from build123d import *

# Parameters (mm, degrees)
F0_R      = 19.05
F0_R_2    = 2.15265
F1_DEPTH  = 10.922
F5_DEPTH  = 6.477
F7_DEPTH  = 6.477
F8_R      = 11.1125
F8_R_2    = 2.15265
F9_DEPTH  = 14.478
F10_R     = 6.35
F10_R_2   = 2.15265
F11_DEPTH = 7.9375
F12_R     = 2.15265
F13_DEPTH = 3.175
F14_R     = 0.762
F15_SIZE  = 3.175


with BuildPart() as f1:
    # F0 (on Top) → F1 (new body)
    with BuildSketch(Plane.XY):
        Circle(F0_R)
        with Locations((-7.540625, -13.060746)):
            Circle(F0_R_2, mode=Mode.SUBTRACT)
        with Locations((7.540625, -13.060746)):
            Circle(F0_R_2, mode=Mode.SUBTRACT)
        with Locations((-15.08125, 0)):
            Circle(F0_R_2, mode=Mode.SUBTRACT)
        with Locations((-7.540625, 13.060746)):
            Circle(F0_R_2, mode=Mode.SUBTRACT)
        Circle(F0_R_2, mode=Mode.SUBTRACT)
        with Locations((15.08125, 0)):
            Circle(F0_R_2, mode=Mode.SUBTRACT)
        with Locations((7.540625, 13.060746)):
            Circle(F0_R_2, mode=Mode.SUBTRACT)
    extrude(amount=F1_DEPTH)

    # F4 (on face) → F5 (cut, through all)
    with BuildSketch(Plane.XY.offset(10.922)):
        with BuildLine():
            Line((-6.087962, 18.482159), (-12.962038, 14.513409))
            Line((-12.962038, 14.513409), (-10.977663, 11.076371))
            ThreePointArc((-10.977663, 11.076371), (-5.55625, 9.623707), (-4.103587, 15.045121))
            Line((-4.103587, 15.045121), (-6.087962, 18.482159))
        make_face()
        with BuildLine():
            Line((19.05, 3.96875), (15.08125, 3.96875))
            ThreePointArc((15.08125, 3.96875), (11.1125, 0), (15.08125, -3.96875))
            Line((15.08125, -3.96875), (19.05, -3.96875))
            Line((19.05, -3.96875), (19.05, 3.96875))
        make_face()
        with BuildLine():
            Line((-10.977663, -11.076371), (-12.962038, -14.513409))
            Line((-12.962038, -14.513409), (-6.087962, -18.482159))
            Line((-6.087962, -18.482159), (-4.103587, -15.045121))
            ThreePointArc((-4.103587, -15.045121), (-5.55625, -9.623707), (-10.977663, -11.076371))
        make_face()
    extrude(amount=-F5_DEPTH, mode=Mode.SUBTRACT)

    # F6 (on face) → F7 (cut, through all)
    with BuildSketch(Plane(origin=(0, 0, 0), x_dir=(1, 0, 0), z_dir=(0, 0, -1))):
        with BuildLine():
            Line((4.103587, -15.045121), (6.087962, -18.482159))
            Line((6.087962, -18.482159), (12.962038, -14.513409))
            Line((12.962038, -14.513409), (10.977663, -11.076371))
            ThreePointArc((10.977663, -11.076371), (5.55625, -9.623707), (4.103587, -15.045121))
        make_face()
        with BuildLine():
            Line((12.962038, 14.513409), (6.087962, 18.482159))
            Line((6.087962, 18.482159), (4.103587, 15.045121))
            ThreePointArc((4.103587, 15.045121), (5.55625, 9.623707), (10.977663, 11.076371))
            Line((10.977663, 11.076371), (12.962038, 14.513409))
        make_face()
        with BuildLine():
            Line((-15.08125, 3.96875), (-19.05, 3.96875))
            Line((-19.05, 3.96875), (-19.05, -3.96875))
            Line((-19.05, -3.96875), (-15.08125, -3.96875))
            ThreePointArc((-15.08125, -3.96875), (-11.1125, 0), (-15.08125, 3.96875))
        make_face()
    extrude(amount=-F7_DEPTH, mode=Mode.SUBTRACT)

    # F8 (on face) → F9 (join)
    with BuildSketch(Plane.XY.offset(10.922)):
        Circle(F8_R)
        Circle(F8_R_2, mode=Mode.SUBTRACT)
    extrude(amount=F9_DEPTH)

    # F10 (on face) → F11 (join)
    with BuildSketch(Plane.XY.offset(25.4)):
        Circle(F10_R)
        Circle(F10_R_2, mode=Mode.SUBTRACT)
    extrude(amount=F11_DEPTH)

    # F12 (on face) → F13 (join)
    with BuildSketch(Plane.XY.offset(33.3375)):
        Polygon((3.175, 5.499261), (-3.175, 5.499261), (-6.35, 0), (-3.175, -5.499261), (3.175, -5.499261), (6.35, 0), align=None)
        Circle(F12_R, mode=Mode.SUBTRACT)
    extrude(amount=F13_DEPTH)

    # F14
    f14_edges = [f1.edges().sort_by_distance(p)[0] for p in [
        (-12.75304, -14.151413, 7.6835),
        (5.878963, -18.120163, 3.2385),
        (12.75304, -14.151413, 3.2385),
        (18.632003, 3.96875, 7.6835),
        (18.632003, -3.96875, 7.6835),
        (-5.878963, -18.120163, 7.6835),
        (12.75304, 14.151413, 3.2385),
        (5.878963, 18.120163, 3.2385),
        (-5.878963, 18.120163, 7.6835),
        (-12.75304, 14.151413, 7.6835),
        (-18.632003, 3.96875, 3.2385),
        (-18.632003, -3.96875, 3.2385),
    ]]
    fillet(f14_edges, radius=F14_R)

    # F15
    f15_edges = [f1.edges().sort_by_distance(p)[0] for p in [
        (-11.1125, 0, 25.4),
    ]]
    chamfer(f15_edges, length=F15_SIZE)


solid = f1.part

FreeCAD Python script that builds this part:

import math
import FreeCAD as App
import Part
import Sketcher

V = App.Vector
Q = App.Units.Quantity


def edges_at(feature, points):
    """Names of the edges that pass closest to the given points."""
    edges = feature.Shape.Edges
    near = lambda p: min(range(len(edges)), key=lambda i: edges[i].distToShape(Part.Vertex(*p))[0])
    return sorted({f"Edge{near(p) + 1}" for p in points})

doc = App.newDocument("Part")
body = doc.addObject("PartDesign::Body", "Body")

sketch1 = body.newObject("Sketcher::SketchObject", "Sketch")
sketch1.AttachmentSupport = (doc.getObject("XY_Plane"), [""])
sketch1.MapMode = "FlatFace"
sketch1.addGeometry([
    Part.Circle(V(0, 0, 0), V(0, 0, 1), 19.1),
    Part.Circle(V(-7.5, -13.1, 0), V(0, 0, 1), 2.2),
    Part.Circle(V(7.5, -13.1, 0), V(0, 0, 1), 2.2),
    Part.Circle(V(-15.1, 0, 0), V(0, 0, 1), 2.2),
    Part.Circle(V(0, 0, 0), V(0, 0, 1), 2.2),
    Part.Circle(V(-7.5, 13.1, 0), V(0, 0, 1), 2.2),
    Part.Circle(V(15.1, 0, 0), V(0, 0, 1), 2.2),
    Part.Circle(V(7.5, 13.1, 0), V(0, 0, 1), 2.2),
], False)
sketch1.addConstraint([
    Sketcher.Constraint("Coincident", 0, 3, -1, 1),
    Sketcher.Constraint("Coincident", 4, 3, -1, 1),
    Sketcher.Constraint("Equal", 1, 2),
    Sketcher.Constraint("Equal", 2, 3),
    Sketcher.Constraint("Equal", 3, 4),
    Sketcher.Constraint("Equal", 4, 5),
    Sketcher.Constraint("Equal", 5, 6),
    Sketcher.Constraint("Equal", 6, 7),
    Sketcher.Constraint("Symmetric", 2, 3, 5, 3, -1, 1),
    Sketcher.Constraint("Symmetric", 3, 3, 6, 3, -1, 1),
    Sketcher.Constraint("Symmetric", 1, 3, 7, 3, -1, 1),
    Sketcher.Constraint("Symmetric", 1, 3, 2, 3, -2),
    Sketcher.Constraint("PointOnObject", 3, 3, -1),
    Sketcher.Constraint("Diameter", 0, Q("1.5 in")),
    Sketcher.Constraint("Diameter", 1, Q("0.1695 in")),
    Sketcher.Constraint("DistanceX", 1, 3, -1, 1, Q("0.296875 in")),
    Sketcher.Constraint("DistanceX", 3, 3, -1, 1, Q("0.59375 in")),
    Sketcher.Constraint("DistanceY", 1, 3, 5, 3, Q("26.121492 mm")),
])
pad1 = body.newObject("PartDesign::Pad", "Pad")
pad1.Profile = sketch1
pad1.Length = Q("0.43 in")

sketch2 = body.newObject("Sketcher::SketchObject", "Sketch001")
sketch2.AttachmentSupport = (doc.getObject("XY_Plane"), [""])
sketch2.MapMode = "FlatFace"
sketch2.AttachmentOffset = App.Placement(V(0, 0, 0.43 * 25.4), App.Rotation())
sketch2.addGeometry([
    Part.LineSegment(V(-6.1, 18.5, 0), V(-13, 14.5, 0)),
    Part.LineSegment(V(-13, 14.5, 0), V(-11, 11.1, 0)),
    Part.ArcOfCircle(Part.Circle(V(-7.5, 13.1, 0), V(0, 0, 1), 4), math.radians(-150), math.radians(30)),
    Part.LineSegment(V(-4.1, 15, 0), V(-6.1, 18.5, 0)),
    Part.LineSegment(V(19.1, 4, 0), V(15.1, 4, 0)),
    Part.ArcOfCircle(Part.Circle(V(15.1, 0, 0), V(0, 0, 1), 4), math.radians(90), math.radians(270)),
    Part.LineSegment(V(15.1, -4, 0), V(19.1, -4, 0)),
    Part.LineSegment(V(19.1, -4, 0), V(19.1, 4, 0)),
    Part.LineSegment(V(-11, -11.1, 0), V(-13, -14.5, 0)),
    Part.LineSegment(V(-13, -14.5, 0), V(-6.1, -18.5, 0)),
    Part.LineSegment(V(-6.1, -18.5, 0), V(-4.1, -15, 0)),
    Part.ArcOfCircle(Part.Circle(V(-7.5, -13.1, 0), V(0, 0, 1), 4), math.radians(-30), math.radians(150)),
], False)
sketch2.addConstraint([
    Sketcher.Constraint("Coincident", 0, 2, 1, 1),
    Sketcher.Constraint("Tangent", 1, 2, 2, 1),
    Sketcher.Constraint("Tangent", 2, 2, 3, 1),
    Sketcher.Constraint("Coincident", 3, 2, 0, 1),
    Sketcher.Constraint("Tangent", 4, 2, 5, 1),
    Sketcher.Constraint("Tangent", 5, 2, 6, 1),
    Sketcher.Constraint("Coincident", 6, 2, 7, 1),
    Sketcher.Constraint("Coincident", 7, 2, 4, 1),
    Sketcher.Constraint("Coincident", 8, 2, 9, 1),
    Sketcher.Constraint("Coincident", 9, 2, 10, 1),
    Sketcher.Constraint("Tangent", 10, 2, 11, 1),
    Sketcher.Constraint("Tangent", 11, 2, 8, 1),
    Sketcher.Constraint("Horizontal", 4),
    Sketcher.Constraint("Horizontal", 6),
    Sketcher.Constraint("Vertical", 7),
    Sketcher.Constraint("Equal", 2, 5),
    Sketcher.Constraint("Equal", 5, 11),
    Sketcher.Constraint("Symmetric", 2, 3, 11, 3, -1),
    Sketcher.Constraint("Symmetric", 0, 2, 8, 2, -1),
    Sketcher.Constraint("Symmetric", 3, 2, 9, 2, -1),
    Sketcher.Constraint("PointOnObject", 5, 3, -1),
    Sketcher.Constraint("Perpendicular", 0, 1),
    Sketcher.Constraint("Parallel", 1, 3),
    Sketcher.Constraint("Angle", 0, Q("-149.999998 deg")),
    Sketcher.Constraint("Radius", 2, Q("0.15625 in")),
    Sketcher.Constraint("DistanceX", 4, 2, 4, 1, Q("0.15625 in")),
    Sketcher.Constraint("DistanceX", -1, 1, 6, 2, Q("0.75 in")),
    Sketcher.Constraint("Distance", 1, Q("0.15625 in")),
    Sketcher.Constraint("DistanceX", 2, 3, -1, 1, Q("0.296875 in")),
    Sketcher.Constraint("DistanceY", -1, 1, 0, 2, Q("14.513409 mm")),
])
pocket1 = body.newObject("PartDesign::Pocket", "Pocket")
pocket1.Profile = sketch2
pocket1.Length = Q("0.255 in")

sketch3 = body.newObject("Sketcher::SketchObject", "Sketch002")
sketch3.AttachmentSupport = (doc.getObject("XY_Plane"), [""])
sketch3.MapMode = "FlatFace"
sketch3.addGeometry([
    Part.LineSegment(V(4.1, 15, 0), V(6.1, 18.5, 0)),
    Part.LineSegment(V(6.1, 18.5, 0), V(13, 14.5, 0)),
    Part.LineSegment(V(13, 14.5, 0), V(11, 11.1, 0)),
    Part.ArcOfCircle(Part.Circle(V(7.5, 13.1, 0), V(0, 0, 1), 4), math.radians(150), math.radians(330)),
    Part.LineSegment(V(13, -14.5, 0), V(6.1, -18.5, 0)),
    Part.LineSegment(V(6.1, -18.5, 0), V(4.1, -15, 0)),
    Part.ArcOfCircle(Part.Circle(V(7.5, -13.1, 0), V(0, 0, 1), 4), math.radians(30), math.radians(210)),
    Part.LineSegment(V(11, -11.1, 0), V(13, -14.5, 0)),
    Part.LineSegment(V(-15.1, -4, 0), V(-19.1, -4, 0)),
    Part.LineSegment(V(-19.1, -4, 0), V(-19.1, 4, 0)),
    Part.LineSegment(V(-19.1, 4, 0), V(-15.1, 4, 0)),
    Part.ArcOfCircle(Part.Circle(V(-15.1, 0, 0), V(0, 0, 1), 4), math.radians(-90), math.radians(90)),
], False)
sketch3.addConstraint([
    Sketcher.Constraint("Coincident", 0, 2, 1, 1),
    Sketcher.Constraint("Coincident", 1, 2, 2, 1),
    Sketcher.Constraint("Tangent", 2, 2, 3, 2),
    Sketcher.Constraint("Tangent", 3, 1, 0, 1),
    Sketcher.Constraint("Coincident", 4, 2, 5, 1),
    Sketcher.Constraint("Tangent", 5, 2, 6, 2),
    Sketcher.Constraint("Tangent", 6, 1, 7, 1),
    Sketcher.Constraint("Coincident", 7, 2, 4, 1),
    Sketcher.Constraint("Coincident", 8, 2, 9, 1),
    Sketcher.Constraint("Coincident", 9, 2, 10, 1),
    Sketcher.Constraint("Tangent", 10, 2, 11, 2),
    Sketcher.Constraint("Tangent", 11, 1, 8, 1),
    Sketcher.Constraint("Horizontal", 8),
    Sketcher.Constraint("Vertical", 9),
    Sketcher.Constraint("Horizontal", 10),
    Sketcher.Constraint("Equal", 3, 6),
    Sketcher.Constraint("Equal", 6, 11),
    Sketcher.Constraint("Symmetric", 3, 3, 6, 3, -1),
    Sketcher.Constraint("Symmetric", 0, 2, 4, 2, -1),
    Sketcher.Constraint("Symmetric", 1, 2, 7, 2, -1),
    Sketcher.Constraint("PointOnObject", 11, 3, -1),
    Sketcher.Constraint("Perpendicular", 0, 1),
    Sketcher.Constraint("Perpendicular", 1, 2),
    Sketcher.Constraint("Angle", 0, Q("59.999998 deg")),
    Sketcher.Constraint("Radius", 3, Q("0.15625 in")),
    Sketcher.Constraint("DistanceX", 8, 2, 8, 1, Q("0.15625 in")),
    Sketcher.Constraint("DistanceX", 8, 2, -1, 1, Q("0.75 in")),
    Sketcher.Constraint("Distance", 0, Q("0.15625 in")),
    Sketcher.Constraint("DistanceX", -1, 1, 3, 3, Q("0.296875 in")),
    Sketcher.Constraint("DistanceY", -1, 1, 0, 2, Q("18.482159 mm")),
])
pocket2 = body.newObject("PartDesign::Pocket", "Pocket001")
pocket2.Profile = sketch3
pocket2.Length = Q("0.255 in")
pocket2.Reversed = True

sketch4 = body.newObject("Sketcher::SketchObject", "Sketch003")
sketch4.AttachmentSupport = (doc.getObject("XY_Plane"), [""])
sketch4.MapMode = "FlatFace"
sketch4.AttachmentOffset = App.Placement(V(0, 0, 0.43 * 25.4), App.Rotation())
sketch4.addGeometry([
    Part.Circle(V(0, 0, 0), V(0, 0, 1), 11.1),
    Part.Circle(V(0, 0, 0), V(0, 0, 1), 2.2),
], False)
sketch4.addConstraint([
    Sketcher.Constraint("Coincident", 0, 3, -1, 1),
    Sketcher.Constraint("Coincident", 1, 3, -1, 1),
    Sketcher.Constraint("Diameter", 0, Q("0.875 in")),
    Sketcher.Constraint("Diameter", 1, Q("0.1695 in")),
])
pad2 = body.newObject("PartDesign::Pad", "Pad001")
pad2.Profile = sketch4
pad2.Length = Q("0.57 in")

sketch5 = body.newObject("Sketcher::SketchObject", "Sketch004")
sketch5.AttachmentSupport = (doc.getObject("XY_Plane"), [""])
sketch5.MapMode = "FlatFace"
sketch5.AttachmentOffset = App.Placement(V(0, 0, 1 * 25.4), App.Rotation())
sketch5.addGeometry([
    Part.Circle(V(0, 0, 0), V(0, 0, 1), 6.3),
    Part.Circle(V(0, 0, 0), V(0, 0, 1), 2.2),
], False)
sketch5.addConstraint([
    Sketcher.Constraint("Coincident", 0, 3, -1, 1),
    Sketcher.Constraint("Coincident", 1, 3, -1, 1),
    Sketcher.Constraint("Diameter", 0, Q("0.5 in")),
    Sketcher.Constraint("Diameter", 1, Q("0.1695 in")),
])
pad3 = body.newObject("PartDesign::Pad", "Pad002")
pad3.Profile = sketch5
pad3.Length = Q("0.3125 in")

sketch6 = body.newObject("Sketcher::SketchObject", "Sketch005")
sketch6.AttachmentSupport = (doc.getObject("XY_Plane"), [""])
sketch6.MapMode = "FlatFace"
sketch6.AttachmentOffset = App.Placement(V(0, 0, 1.3125 * 25.4), App.Rotation())
sketch6.addGeometry([
    Part.LineSegment(V(3.2, 5.5, 0), V(-3.2, 5.5, 0)),
    Part.LineSegment(V(-3.2, 5.5, 0), V(-6.3, 0, 0)),
    Part.LineSegment(V(-6.3, 0, 0), V(-3.2, -5.5, 0)),
    Part.LineSegment(V(-3.2, -5.5, 0), V(3.2, -5.5, 0)),
    Part.LineSegment(V(3.2, -5.5, 0), V(6.3, 0, 0)),
    Part.LineSegment(V(6.3, 0, 0), V(3.2, 5.5, 0)),
    Part.Circle(V(0, 0, 0), V(0, 0, 1), 2.2),
], False)
sketch6.addConstraint([
    Sketcher.Constraint("Coincident", 0, 2, 1, 1),
    Sketcher.Constraint("Coincident", 1, 2, 2, 1),
    Sketcher.Constraint("Coincident", 2, 2, 3, 1),
    Sketcher.Constraint("Coincident", 3, 2, 4, 1),
    Sketcher.Constraint("Coincident", 4, 2, 5, 1),
    Sketcher.Constraint("Coincident", 5, 2, 0, 1),
    Sketcher.Constraint("Horizontal", 0),
    Sketcher.Constraint("Horizontal", 3),
    Sketcher.Constraint("Coincident", 6, 3, -1, 1),
    Sketcher.Constraint("Symmetric", 0, 2, 3, 2, -1, 1),
    Sketcher.Constraint("Symmetric", 1, 2, 4, 2, -1, 1),
    Sketcher.Constraint("PointOnObject", 1, 2, -1),
    Sketcher.Constraint("Parallel", 2, 5),
    Sketcher.Constraint("Vertical", 0, 2, 2, 2),
    Sketcher.Constraint("Angle", 1, Q("-120.000001 deg")),
    Sketcher.Constraint("Diameter", 6, Q("0.1695 in")),
    Sketcher.Constraint("DistanceX", 0, 2, 0, 1, Q("0.25 in")),
    Sketcher.Constraint("DistanceX", 1, 2, 4, 2, Q("0.5 in")),
])
pad4 = body.newObject("PartDesign::Pad", "Pad003")
pad4.Profile = sketch6
pad4.Length = Q("0.125 in")
doc.recompute()

fillet = body.newObject("PartDesign::Fillet", "Fillet")
fillet.Base = (pad4, edges_at(pad4, [
    (-12.753, -14.151, 7.684),
    (5.879, -18.12, 3.239),
    (12.753, -14.151, 3.239),
    (18.632, 3.969, 7.684),
    (18.632, -3.969, 7.684),
    (-5.879, -18.12, 7.684),
    (12.753, 14.151, 3.239),
    (5.879, 18.12, 3.239),
    (-5.879, 18.12, 7.684),
    (-12.753, 14.151, 7.684),
    (-18.632, 3.969, 3.239),
    (-18.632, -3.969, 3.239),
]))
fillet.Radius = Q("0.03 in")
doc.recompute()

chamfer = body.newObject("PartDesign::Chamfer", "Chamfer")
chamfer.Base = (fillet, edges_at(fillet, [(-11.113, 0, 25.4)]))
chamfer.Size = Q("0.125 in")

doc.recompute()
